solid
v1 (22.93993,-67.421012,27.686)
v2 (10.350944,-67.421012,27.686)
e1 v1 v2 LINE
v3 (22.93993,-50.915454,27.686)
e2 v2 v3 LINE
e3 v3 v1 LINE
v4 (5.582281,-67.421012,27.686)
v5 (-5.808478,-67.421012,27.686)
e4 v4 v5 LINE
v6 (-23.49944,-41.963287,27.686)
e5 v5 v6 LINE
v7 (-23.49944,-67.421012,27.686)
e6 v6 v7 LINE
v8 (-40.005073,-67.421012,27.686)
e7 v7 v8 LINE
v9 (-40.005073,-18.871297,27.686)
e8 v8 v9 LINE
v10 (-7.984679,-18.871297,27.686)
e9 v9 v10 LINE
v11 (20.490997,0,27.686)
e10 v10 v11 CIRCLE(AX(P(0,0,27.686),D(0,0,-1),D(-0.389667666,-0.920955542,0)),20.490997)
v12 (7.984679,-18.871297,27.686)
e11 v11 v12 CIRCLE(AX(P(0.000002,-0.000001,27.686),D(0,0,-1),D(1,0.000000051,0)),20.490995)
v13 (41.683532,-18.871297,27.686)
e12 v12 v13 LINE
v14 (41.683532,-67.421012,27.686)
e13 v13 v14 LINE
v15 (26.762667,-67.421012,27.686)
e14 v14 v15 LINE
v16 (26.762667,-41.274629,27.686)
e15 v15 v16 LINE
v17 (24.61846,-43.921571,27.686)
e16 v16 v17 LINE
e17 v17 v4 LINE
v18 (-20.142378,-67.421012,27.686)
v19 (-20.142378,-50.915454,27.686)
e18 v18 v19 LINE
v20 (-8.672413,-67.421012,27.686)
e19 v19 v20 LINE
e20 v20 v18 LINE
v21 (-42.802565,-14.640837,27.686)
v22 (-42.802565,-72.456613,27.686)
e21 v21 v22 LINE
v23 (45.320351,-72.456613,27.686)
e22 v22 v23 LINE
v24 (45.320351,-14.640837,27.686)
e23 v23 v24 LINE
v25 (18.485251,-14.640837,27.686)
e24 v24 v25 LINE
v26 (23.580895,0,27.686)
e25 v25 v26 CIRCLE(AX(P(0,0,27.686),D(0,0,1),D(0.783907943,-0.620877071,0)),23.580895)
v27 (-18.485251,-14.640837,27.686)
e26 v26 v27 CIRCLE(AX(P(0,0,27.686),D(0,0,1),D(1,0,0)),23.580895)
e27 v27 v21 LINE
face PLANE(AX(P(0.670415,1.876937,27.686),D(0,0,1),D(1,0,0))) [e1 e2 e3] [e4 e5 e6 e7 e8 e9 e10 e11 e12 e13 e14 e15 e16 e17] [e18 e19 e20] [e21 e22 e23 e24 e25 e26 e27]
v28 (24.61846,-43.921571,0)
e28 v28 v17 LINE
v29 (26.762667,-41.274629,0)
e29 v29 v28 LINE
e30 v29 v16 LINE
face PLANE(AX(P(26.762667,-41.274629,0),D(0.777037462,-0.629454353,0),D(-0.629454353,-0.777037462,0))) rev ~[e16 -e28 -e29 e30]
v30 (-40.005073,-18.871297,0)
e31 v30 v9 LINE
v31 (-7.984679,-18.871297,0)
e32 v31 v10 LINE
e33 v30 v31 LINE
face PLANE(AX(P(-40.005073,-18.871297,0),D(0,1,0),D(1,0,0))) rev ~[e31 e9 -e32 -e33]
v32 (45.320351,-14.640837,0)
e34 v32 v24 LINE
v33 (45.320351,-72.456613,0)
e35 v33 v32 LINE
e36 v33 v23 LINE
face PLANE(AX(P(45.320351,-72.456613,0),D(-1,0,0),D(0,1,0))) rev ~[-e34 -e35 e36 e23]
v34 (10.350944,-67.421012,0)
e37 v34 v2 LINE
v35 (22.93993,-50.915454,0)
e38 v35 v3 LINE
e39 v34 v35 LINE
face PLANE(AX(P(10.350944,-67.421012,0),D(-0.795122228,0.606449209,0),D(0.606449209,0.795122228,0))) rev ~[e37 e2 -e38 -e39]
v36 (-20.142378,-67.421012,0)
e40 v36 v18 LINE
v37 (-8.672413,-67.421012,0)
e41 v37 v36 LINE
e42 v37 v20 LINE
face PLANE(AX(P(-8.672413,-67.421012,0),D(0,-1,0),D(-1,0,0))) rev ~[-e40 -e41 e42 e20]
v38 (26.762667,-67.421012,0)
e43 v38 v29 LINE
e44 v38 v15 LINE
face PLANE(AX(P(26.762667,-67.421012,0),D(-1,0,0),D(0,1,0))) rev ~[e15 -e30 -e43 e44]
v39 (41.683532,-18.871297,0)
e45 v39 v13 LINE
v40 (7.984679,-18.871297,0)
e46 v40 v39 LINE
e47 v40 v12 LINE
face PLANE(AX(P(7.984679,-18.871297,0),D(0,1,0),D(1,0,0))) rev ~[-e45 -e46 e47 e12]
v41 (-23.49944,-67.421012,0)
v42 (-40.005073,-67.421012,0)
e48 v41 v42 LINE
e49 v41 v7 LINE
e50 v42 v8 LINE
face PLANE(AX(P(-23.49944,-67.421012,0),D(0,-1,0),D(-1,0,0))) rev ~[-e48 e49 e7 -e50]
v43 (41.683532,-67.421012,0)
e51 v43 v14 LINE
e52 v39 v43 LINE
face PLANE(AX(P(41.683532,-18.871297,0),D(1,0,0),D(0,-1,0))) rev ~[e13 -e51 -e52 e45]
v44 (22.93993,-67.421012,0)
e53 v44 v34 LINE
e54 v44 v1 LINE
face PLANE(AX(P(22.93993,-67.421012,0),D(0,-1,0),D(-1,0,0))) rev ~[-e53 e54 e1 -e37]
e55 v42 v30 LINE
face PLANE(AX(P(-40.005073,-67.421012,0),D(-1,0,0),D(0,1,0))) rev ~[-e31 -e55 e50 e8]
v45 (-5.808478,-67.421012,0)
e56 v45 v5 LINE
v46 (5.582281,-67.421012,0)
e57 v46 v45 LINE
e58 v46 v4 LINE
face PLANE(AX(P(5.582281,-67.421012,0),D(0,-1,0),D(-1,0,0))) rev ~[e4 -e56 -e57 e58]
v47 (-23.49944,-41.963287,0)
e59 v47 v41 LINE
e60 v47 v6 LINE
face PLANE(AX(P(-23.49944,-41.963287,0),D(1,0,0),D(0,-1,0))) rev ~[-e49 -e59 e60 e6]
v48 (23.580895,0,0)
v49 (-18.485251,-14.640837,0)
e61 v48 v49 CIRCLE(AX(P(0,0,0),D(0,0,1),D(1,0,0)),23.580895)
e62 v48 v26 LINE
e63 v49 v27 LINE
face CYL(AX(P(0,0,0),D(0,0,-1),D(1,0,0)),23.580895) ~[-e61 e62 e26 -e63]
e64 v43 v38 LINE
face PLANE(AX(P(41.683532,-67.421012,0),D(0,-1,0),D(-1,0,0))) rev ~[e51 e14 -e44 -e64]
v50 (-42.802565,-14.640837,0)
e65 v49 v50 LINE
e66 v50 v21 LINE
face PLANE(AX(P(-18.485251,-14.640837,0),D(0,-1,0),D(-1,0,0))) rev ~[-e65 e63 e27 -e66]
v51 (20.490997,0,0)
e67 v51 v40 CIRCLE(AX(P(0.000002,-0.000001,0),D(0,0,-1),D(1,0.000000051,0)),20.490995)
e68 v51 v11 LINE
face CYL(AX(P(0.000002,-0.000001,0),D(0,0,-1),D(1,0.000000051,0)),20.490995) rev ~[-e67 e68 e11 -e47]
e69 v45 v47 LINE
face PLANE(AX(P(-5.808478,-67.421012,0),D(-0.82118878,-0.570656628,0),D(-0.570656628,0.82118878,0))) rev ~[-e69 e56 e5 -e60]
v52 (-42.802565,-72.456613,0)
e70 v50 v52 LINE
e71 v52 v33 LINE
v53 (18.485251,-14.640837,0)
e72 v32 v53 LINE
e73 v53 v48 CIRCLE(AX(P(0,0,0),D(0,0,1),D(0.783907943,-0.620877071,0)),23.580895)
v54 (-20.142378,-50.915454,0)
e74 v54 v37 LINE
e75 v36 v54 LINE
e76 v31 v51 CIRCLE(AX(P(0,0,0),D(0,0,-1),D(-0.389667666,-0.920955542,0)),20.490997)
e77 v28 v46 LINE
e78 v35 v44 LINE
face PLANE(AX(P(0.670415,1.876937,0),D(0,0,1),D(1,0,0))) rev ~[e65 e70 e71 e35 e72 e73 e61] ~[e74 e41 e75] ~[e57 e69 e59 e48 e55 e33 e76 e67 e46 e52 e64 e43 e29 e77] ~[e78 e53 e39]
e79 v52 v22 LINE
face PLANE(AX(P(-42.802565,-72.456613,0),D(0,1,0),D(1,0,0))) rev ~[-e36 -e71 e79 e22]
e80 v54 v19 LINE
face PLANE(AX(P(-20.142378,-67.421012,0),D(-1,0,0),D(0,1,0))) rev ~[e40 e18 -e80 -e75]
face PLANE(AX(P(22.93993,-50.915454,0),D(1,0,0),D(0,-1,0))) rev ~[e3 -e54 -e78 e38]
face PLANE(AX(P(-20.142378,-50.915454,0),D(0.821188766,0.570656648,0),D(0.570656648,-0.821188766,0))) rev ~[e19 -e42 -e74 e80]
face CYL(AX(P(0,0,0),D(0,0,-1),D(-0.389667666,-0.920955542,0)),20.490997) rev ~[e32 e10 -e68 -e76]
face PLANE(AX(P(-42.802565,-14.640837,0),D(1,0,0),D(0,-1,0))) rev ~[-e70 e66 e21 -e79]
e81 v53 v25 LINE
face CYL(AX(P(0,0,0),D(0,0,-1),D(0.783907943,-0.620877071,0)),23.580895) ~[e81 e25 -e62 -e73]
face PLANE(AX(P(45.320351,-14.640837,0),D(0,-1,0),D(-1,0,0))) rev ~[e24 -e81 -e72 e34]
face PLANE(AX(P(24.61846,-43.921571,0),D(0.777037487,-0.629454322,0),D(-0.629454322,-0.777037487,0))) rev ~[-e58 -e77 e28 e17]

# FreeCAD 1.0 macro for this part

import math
import FreeCAD as App
import Part
import Sketcher

V = App.Vector
Q = App.Units.Quantity


def add_polygon(sketch, points):
    """Adds a closed chain of lines whose ends are joined by coincident constraints."""
    first, n = sketch.GeometryCount, len(points)
    for a, b in zip(points, points[1:] + points[:1]):
        sketch.addGeometry(Part.LineSegment(App.Vector(*a, 0), App.Vector(*b, 0)), False)
    for i in range(n):
        sketch.addConstraint(Sketcher.Constraint("Coincident", first + i, 2, first + (i + 1) % n, 1))

doc = App.newDocument("Part")
body = doc.addObject("PartDesign::Body", "Body")

sketch1 = body.newObject("Sketcher::SketchObject", "Sketch")
sketch1.AttachmentSupport = (doc.getObject("XY_Plane"), [""])
sketch1.MapMode = "FlatFace"
sketch1.addGeometry(Part.LineSegment(V(45.3, -72.5, 0), V(45.3, -14.6, 0)), False)
sketch1.addGeometry(Part.LineSegment(V(45.3, -14.6, 0), V(18.5, -14.6, 0)), False)
sketch1.addGeometry(Part.ArcOfCircle(Part.Circle(V(0, 0, 0), V(0, 0, 1), 23.6), math.radians(-38), math.radians(0)), False)
sketch1.addGeometry(Part.ArcOfCircle(Part.Circle(V(0, 0, 0), V(0, 0, 1), 23.6), math.radians(0), math.radians(218)), False)
sketch1.addGeometry(Part.LineSegment(V(-18.5, -14.6, 0), V(-42.8, -14.6, 0)), False)
sketch1.addGeometry(Part.LineSegment(V(-42.8, -14.6, 0), V(-42.8, -72.5, 0)), False)
sketch1.addGeometry(Part.LineSegment(V(-42.8, -72.5, 0), V(45.3, -72.5, 0)), False)
sketch1.addGeometry(Part.ArcOfCircle(Part.Circle(V(0, 0, 0), V(0, 0, 1), 20.5), math.radians(0), math.radians(247)), False)
sketch1.addGeometry(Part.ArcOfCircle(Part.Circle(V(0, 0, 0), V(0, 0, 1), 20.5), math.radians(-67), math.radians(0)), False)
sketch1.addGeometry(Part.LineSegment(V(8, -18.9, 0), V(41.7, -18.9, 0)), False)
sketch1.addGeometry(Part.LineSegment(V(41.7, -18.9, 0), V(41.7, -67.4, 0)), False)
sketch1.addGeometry(Part.LineSegment(V(41.7, -67.4, 0), V(26.8, -67.4, 0)), False)
sketch1.addGeometry(Part.LineSegment(V(26.8, -67.4, 0), V(26.8, -41.3, 0)), False)
sketch1.addGeometry(Part.LineSegment(V(26.8, -41.3, 0), V(24.6, -43.9, 0)), False)
sketch1.addGeometry(Part.LineSegment(V(24.6, -43.9, 0), V(5.6, -67.4, 0)), False)
sketch1.addGeometry(Part.LineSegment(V(5.6, -67.4, 0), V(-5.8, -67.4, 0)), False)
sketch1.addGeometry(Part.LineSegment(V(-5.8, -67.4, 0), V(-23.5, -42, 0)), False)
sketch1.addGeometry(Part.LineSegment(V(-23.5, -42, 0), V(-23.5, -67.4, 0)), False)
sketch1.addGeometry(Part.LineSegment(V(-23.5, -67.4, 0), V(-40, -67.4, 0)), False)
sketch1.addGeometry(Part.LineSegment(V(-40, -67.4, 0), V(-40, -18.9, 0)), False)
sketch1.addGeometry(Part.LineSegment(V(-40, -18.9, 0), V(-8, -18.9, 0)), False)
add_polygon(sketch1, [(-8.7, -67.4), (-20.1, -67.4), (-20.1, -50.9)])
add_polygon(sketch1, [(22.9, -67.4), (10.4, -67.4), (22.9, -50.9)])
sketch1.addConstraint([
    Sketcher.Constraint("Coincident", 0, 2, 1, 1),
    Sketcher.Constraint("Coincident", 1, 2, 2, 1),
    Sketcher.Constraint("Tangent", 2, 2, 3, 1),
    Sketcher.Constraint("Coincident", 3, 2, 4, 1),
    Sketcher.Constraint("Coincident", 4, 2, 5, 1),
    Sketcher.Constraint("Coincident", 5, 2, 6, 1),
    Sketcher.Constraint("Coincident", 6, 2, 0, 1),
    Sketcher.Constraint("Tangent", 7, 1, 8, 2),
    Sketcher.Constraint("Coincident", 8, 1, 9, 1),
    Sketcher.Constraint("Coincident", 9, 2, 10, 1),
    Sketcher.Constraint("Coincident", 10, 2, 11, 1),
    Sketcher.Constraint("Coincident", 11, 2, 12, 1),
    Sketcher.Constraint("Coincident", 12, 2, 13, 1),
    Sketcher.Constraint("Coincident", 13, 2, 14, 1),
    Sketcher.Constraint("Coincident", 14, 2, 15, 1),
    Sketcher.Constraint("Coincident", 15, 2, 16, 1),
    Sketcher.Constraint("Coincident", 16, 2, 17, 1),
    Sketcher.Constraint("Coincident", 17, 2, 18, 1),
    Sketcher.Constraint("Coincident", 18, 2, 19, 1),
    Sketcher.Constraint("Coincident", 19, 2, 20, 1),
    Sketcher.Constraint("Coincident", 20, 2, 7, 2),
    Sketcher.Constraint("Vertical", 0),
    Sketcher.Constraint("Horizontal", 1),
    Sketcher.Constraint("Horizontal", 4),
    Sketcher.Constraint("Vertical", 5),
    Sketcher.Constraint("Horizontal", 6),
    Sketcher.Constraint("Horizontal", 9),
    Sketcher.Constraint("Vertical", 10),
    Sketcher.Constraint("Horizontal", 11),
    Sketcher.Constraint("Vertical", 12),
    Sketcher.Constraint("Horizontal", 15),
    Sketcher.Constraint("Vertical", 17),
    Sketcher.Constraint("Horizontal", 18),
    Sketcher.Constraint("Vertical", 19),
    Sketcher.Constraint("Horizontal", 20),
    Sketcher.Constraint("Horizontal", 21),
    Sketcher.Constraint("Vertical", 22),
    Sketcher.Constraint("Horizontal", 24),
    Sketcher.Constraint("Vertical", 26),
    Sketcher.Constraint("Coincident", 2, 3, -1, 1),
    Sketcher.Constraint("Coincident", 7, 3, -1, 1),
    Sketcher.Constraint("Equal", 2, 3),
    Sketcher.Constraint("Equal", 7, 8),
    Sketcher.Constraint("PointOnObject", 2, 2, -1),
    Sketcher.Constraint("PointOnObject", 7, 1, -1),
    Sketcher.Constraint("Parallel", 13, 14),
    Sketcher.Constraint("Parallel", 16, 23),
    Sketcher.Constraint("Horizontal", 1, 2, 3, 2),
    Sketcher.Constraint("Horizontal", 11, 2, 14, 2),
    Sketcher.Constraint("Horizontal", 15, 2, 17, 2),
    Sketcher.Constraint("Horizontal", 9, 2, 19, 2),
    Sketcher.Constraint("Horizontal", 18, 2, 21, 2),
    Sketcher.Constraint("Horizontal", 23, 2, 24, 2),
    Sketcher.Constraint("Horizontal", 22, 2, 25, 2),
    Sketcher.Constraint("DistanceX", 1, 2, 1, 1, Q("1.0565 in")),
    Sketcher.Constraint("Radius", 2, Q("23.580895 mm")),
    Sketcher.Constraint("Radius", 7, Q("20.490997 mm")),
    Sketcher.Constraint("DistanceX", 15, 2, 15, 1, Q("11.390759 mm")),
    Sketcher.Constraint("DistanceY", 22, 1, 22, 2, Q("16.505558 mm")),
    Sketcher.Constraint("DistanceY", 6, 2, 10, 2, Q("5.035601 mm")),
    Sketcher.Constraint("DistanceX", 21, 2, 15, 2, Q("14.3339 mm")),
    Sketcher.Constraint("DistanceX", 26, 2, 10, 2, Q("18.743602 mm")),
    Sketcher.Constraint("Distance", 14, Q("30.242352 mm")),
    Sketcher.Constraint("Distance", 23, Q("20.099591 mm")),
    Sketcher.Constraint("DistanceX", 4, 2, 4, 1, Q("24.317314 mm")),
    Sketcher.Constraint("DistanceX", 6, 1, 6, 2, Q("88.122916 mm")),
    Sketcher.Constraint("DistanceX", 9, 1, 9, 2, Q("33.698853 mm")),
    Sketcher.Constraint("DistanceX", 11, 2, 11, 1, Q("14.920865 mm")),
    Sketcher.Constraint("DistanceX", 18, 2, 18, 1, Q("16.505633 mm")),
    Sketcher.Constraint("DistanceX", 20, 1, 20, 2, Q("32.020394 mm")),
    Sketcher.Constraint("DistanceX", 24, 2, 24, 1, Q("12.588986 mm")),
    Sketcher.Constraint("DistanceY", 0, 1, 0, 2, Q("57.815776 mm")),
    Sketcher.Constraint("DistanceY", 10, 2, 10, 1, Q("48.549715 mm")),
    Sketcher.Constraint("DistanceY", 12, 1, 12, 2, Q("26.146383 mm")),
    Sketcher.Constraint("DistanceY", 17, 2, 17, 1, Q("25.457725 mm")),
])
pad1 = body.newObject("PartDesign::Pad", "Pad")
pad1.Profile = sketch1
pad1.Length = Q("1.09 in")

doc.recompute()
